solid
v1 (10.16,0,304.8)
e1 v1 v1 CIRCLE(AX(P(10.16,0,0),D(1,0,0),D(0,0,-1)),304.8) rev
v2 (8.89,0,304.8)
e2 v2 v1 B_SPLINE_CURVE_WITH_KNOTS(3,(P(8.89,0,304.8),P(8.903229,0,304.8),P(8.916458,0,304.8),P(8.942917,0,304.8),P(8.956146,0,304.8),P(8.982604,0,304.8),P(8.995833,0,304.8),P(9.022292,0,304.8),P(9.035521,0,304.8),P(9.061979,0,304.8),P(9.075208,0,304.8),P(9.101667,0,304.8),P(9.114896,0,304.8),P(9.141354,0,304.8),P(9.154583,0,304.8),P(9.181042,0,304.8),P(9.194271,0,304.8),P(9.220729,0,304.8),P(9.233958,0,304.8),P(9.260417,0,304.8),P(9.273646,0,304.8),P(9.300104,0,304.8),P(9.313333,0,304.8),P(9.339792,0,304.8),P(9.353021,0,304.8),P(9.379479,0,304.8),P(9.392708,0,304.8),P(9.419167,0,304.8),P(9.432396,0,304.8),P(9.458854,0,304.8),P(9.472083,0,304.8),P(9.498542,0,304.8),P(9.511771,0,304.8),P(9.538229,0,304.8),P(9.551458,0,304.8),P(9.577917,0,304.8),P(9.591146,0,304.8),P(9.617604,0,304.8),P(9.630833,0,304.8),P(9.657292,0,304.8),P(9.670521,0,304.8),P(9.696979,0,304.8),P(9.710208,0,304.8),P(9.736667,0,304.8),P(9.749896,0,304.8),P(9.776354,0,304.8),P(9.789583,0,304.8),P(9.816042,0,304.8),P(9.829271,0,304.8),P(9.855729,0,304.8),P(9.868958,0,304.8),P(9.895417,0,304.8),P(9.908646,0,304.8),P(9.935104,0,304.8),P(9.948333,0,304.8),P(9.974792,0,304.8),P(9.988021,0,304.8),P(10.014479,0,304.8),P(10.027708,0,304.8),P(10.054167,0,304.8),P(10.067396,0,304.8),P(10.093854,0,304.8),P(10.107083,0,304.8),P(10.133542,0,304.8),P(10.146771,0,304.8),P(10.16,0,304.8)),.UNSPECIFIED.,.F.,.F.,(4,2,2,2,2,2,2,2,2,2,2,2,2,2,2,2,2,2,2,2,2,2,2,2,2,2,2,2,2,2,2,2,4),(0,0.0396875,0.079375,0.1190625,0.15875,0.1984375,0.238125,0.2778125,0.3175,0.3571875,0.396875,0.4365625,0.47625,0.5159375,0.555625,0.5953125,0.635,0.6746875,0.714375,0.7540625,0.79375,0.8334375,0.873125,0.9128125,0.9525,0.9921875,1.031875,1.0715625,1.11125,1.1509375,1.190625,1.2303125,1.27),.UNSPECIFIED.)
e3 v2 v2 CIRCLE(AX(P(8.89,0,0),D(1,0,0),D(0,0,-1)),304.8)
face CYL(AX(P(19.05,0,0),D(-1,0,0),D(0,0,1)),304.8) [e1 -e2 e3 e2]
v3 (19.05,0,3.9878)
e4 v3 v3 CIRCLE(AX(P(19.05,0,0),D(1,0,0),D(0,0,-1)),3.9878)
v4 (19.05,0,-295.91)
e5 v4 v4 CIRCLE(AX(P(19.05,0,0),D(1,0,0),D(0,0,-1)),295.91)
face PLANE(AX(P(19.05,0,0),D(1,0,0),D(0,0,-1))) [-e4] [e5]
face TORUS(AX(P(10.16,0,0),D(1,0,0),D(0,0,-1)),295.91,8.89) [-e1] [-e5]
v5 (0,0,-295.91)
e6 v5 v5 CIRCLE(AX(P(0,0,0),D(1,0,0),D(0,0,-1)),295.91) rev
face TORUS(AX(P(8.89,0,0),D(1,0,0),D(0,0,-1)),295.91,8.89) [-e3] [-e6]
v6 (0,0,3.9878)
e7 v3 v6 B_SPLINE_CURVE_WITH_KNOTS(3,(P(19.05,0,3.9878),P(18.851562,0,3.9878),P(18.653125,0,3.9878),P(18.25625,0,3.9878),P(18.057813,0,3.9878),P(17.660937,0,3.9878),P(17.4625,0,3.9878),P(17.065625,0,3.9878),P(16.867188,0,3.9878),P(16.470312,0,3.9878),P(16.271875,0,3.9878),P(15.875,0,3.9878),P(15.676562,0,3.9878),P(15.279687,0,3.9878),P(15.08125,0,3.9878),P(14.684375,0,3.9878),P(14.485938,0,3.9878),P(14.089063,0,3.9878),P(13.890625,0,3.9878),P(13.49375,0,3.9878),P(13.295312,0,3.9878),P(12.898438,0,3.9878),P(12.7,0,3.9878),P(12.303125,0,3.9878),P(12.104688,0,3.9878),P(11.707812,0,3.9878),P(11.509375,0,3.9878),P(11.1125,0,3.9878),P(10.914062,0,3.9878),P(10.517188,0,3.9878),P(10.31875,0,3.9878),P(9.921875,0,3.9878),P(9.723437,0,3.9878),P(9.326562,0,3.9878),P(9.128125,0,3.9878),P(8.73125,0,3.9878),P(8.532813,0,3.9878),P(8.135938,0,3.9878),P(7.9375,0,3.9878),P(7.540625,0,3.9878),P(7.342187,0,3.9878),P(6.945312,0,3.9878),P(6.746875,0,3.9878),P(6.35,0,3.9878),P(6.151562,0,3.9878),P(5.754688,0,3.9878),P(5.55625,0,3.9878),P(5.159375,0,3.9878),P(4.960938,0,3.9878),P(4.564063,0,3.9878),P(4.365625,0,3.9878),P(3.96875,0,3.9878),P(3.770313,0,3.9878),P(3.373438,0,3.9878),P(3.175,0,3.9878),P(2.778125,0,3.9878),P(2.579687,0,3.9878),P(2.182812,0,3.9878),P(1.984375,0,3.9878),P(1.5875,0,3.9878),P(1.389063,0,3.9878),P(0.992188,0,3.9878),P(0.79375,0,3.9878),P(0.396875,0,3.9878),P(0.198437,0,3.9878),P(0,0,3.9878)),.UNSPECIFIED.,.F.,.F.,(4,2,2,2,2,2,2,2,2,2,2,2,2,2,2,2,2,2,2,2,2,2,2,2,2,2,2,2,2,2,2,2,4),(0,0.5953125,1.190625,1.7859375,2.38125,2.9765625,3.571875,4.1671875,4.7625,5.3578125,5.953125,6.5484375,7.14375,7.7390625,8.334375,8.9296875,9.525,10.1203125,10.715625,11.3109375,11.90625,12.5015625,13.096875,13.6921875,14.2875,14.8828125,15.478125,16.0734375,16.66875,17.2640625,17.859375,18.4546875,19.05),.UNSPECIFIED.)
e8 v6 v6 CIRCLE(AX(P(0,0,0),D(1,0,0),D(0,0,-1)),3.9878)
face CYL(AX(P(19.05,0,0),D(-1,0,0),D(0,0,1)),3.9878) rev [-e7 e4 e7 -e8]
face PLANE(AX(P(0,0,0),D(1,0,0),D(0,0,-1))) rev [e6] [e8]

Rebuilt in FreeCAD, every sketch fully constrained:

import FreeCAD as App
import Part
import Sketcher
Q = App.Units.Quantity


def edges_at(feature, points):
    """Names of the edges that pass closest to the given points."""
    edges = feature.Shape.Edges
    near = lambda p: min(range(len(edges)), key=lambda i: edges[i].distToShape(Part.Vertex(*p))[0])
    return sorted({f"Edge{near(p) + 1}" for p in points})

doc = App.newDocument("Part")
params = doc.addObject("Spreadsheet::Sheet", "Params")
for row, (alias, value) in enumerate([
    ("sketch1_diameter", "24 in"),
    ("sketch1_diameter2", "0.314 in"),
    ("pad1_length", "0.75 in"),
    ("fillet_radius", "0.35 in"),
], start=1):
    params.set(f"A{row}", alias)
    params.set(f"B{row}", "=" + value)
    params.setAlias(f"B{row}", alias)

body = doc.addObject("PartDesign::Body", "Body")

sketch1 = doc.addObject("Sketcher::SketchObject", "Sketch")
body.addObject(sketch1)
sketch1.AttachmentSupport = (doc.YZ_Plane, [""])
sketch1.MapMode = "FlatFace"
sketch1.addGeometry([
    Part.Circle(App.Vector(0, 0, 0), App.Vector(0, 0, 1), 304.8),
    Part.Circle(App.Vector(0, 0, 0), App.Vector(0, 0, 1), 4),
], False)
sketch1.addConstraint([
    Sketcher.Constraint("Coincident", 0, 3, -1, 1),
    Sketcher.Constraint("Coincident", 1, 3, -1, 1),
    Sketcher.Constraint("Diameter", 0, Q("24 in")),
    Sketcher.Constraint("Diameter", 1, Q("0.314 in")),
])
sketch1.setExpression("Constraints[2]", "Params.sketch1_diameter")
sketch1.setExpression("Constraints[3]", "Params.sketch1_diameter2")
pad1 = doc.addObject("PartDesign::Pad", "Pad")
body.addObject(pad1)
pad1.Profile = sketch1
pad1.setExpression("Length", "Params.pad1_length")
doc.recompute()

fillet = doc.addObject("PartDesign::Fillet", "Fillet")
body.addObject(fillet)
fillet.Base = (pad1, edges_at(pad1, [(0, 0, -304.8), (19.05, 0, -304.8)]))
fillet.setExpression("Radius", "Params.fillet_radius")

doc.recompute()
